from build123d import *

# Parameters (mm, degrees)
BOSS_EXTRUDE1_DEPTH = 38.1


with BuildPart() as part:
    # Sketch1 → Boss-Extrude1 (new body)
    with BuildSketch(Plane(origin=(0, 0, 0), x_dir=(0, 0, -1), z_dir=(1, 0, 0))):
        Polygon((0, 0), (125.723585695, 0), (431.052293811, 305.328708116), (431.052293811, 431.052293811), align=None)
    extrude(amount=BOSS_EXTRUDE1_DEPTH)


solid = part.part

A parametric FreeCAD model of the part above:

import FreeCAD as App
import Part
import Sketcher
Q = App.Units.Quantity


def add_polygon(sketch, points):
    """Adds a closed chain of lines whose ends are joined by coincident constraints."""
    first, n = sketch.GeometryCount, len(points)
    for a, b in zip(points, points[1:] + points[:1]):
        sketch.addGeometry(Part.LineSegment(App.Vector(*a, 0), App.Vector(*b, 0)), False)
    for i in range(n):
        sketch.addConstraint(Sketcher.Constraint("Coincident", first + i, 2, first + (i + 1) % n, 1))

doc = App.newDocument("Part")
params = doc.addObject("Spreadsheet::Sheet", "Params")
for row, (alias, value) in enumerate([
    ("sketch1_length", "17 in"),
    ("sketch1_length2", "24 in"),
    ("pad1_length", "1.5 in"),
], start=1):
    params.set(f"A{row}", alias)
    params.set(f"B{row}", "=" + value)
    params.setAlias(f"B{row}", alias)

body = doc.addObject("PartDesign::Body", "Body")

# Sketch on YZ plane
sketch1 = body.newObject("Sketcher::SketchObject", "Sketch")
sketch1.AttachmentSupport = (doc.getObject("YZ_Plane"), [""])
sketch1.MapMode = "FlatFace"
add_polygon(sketch1, [(0, 0), (0, -125.723586), (305.328708, -431.052294), (431.052294, -431.052294)])  # lines 0-3
sketch1.addConstraint([
    Sketcher.Constraint("Vertical", 0),
    Sketcher.Constraint("Horizontal", 2),
    Sketcher.Constraint("Coincident", 3, 2, -1, 1),
    Sketcher.Constraint("Parallel", 1, 3),
    Sketcher.Constraint("Equal", 2, 0),
    Sketcher.Constraint("Distance", 1, Q("17 in")),
    Sketcher.Constraint("Distance", 3, Q("24 in")),
])
sketch1.setExpression("Constraints[9]", "Params.sketch1_length")
sketch1.setExpression("Constraints[10]", "Params.sketch1_length2")
pad1 = body.newObject("PartDesign::Pad", "Pad")
pad1.Profile = sketch1
pad1.setExpression("Length", "Params.pad1_length")

doc.recompute()
